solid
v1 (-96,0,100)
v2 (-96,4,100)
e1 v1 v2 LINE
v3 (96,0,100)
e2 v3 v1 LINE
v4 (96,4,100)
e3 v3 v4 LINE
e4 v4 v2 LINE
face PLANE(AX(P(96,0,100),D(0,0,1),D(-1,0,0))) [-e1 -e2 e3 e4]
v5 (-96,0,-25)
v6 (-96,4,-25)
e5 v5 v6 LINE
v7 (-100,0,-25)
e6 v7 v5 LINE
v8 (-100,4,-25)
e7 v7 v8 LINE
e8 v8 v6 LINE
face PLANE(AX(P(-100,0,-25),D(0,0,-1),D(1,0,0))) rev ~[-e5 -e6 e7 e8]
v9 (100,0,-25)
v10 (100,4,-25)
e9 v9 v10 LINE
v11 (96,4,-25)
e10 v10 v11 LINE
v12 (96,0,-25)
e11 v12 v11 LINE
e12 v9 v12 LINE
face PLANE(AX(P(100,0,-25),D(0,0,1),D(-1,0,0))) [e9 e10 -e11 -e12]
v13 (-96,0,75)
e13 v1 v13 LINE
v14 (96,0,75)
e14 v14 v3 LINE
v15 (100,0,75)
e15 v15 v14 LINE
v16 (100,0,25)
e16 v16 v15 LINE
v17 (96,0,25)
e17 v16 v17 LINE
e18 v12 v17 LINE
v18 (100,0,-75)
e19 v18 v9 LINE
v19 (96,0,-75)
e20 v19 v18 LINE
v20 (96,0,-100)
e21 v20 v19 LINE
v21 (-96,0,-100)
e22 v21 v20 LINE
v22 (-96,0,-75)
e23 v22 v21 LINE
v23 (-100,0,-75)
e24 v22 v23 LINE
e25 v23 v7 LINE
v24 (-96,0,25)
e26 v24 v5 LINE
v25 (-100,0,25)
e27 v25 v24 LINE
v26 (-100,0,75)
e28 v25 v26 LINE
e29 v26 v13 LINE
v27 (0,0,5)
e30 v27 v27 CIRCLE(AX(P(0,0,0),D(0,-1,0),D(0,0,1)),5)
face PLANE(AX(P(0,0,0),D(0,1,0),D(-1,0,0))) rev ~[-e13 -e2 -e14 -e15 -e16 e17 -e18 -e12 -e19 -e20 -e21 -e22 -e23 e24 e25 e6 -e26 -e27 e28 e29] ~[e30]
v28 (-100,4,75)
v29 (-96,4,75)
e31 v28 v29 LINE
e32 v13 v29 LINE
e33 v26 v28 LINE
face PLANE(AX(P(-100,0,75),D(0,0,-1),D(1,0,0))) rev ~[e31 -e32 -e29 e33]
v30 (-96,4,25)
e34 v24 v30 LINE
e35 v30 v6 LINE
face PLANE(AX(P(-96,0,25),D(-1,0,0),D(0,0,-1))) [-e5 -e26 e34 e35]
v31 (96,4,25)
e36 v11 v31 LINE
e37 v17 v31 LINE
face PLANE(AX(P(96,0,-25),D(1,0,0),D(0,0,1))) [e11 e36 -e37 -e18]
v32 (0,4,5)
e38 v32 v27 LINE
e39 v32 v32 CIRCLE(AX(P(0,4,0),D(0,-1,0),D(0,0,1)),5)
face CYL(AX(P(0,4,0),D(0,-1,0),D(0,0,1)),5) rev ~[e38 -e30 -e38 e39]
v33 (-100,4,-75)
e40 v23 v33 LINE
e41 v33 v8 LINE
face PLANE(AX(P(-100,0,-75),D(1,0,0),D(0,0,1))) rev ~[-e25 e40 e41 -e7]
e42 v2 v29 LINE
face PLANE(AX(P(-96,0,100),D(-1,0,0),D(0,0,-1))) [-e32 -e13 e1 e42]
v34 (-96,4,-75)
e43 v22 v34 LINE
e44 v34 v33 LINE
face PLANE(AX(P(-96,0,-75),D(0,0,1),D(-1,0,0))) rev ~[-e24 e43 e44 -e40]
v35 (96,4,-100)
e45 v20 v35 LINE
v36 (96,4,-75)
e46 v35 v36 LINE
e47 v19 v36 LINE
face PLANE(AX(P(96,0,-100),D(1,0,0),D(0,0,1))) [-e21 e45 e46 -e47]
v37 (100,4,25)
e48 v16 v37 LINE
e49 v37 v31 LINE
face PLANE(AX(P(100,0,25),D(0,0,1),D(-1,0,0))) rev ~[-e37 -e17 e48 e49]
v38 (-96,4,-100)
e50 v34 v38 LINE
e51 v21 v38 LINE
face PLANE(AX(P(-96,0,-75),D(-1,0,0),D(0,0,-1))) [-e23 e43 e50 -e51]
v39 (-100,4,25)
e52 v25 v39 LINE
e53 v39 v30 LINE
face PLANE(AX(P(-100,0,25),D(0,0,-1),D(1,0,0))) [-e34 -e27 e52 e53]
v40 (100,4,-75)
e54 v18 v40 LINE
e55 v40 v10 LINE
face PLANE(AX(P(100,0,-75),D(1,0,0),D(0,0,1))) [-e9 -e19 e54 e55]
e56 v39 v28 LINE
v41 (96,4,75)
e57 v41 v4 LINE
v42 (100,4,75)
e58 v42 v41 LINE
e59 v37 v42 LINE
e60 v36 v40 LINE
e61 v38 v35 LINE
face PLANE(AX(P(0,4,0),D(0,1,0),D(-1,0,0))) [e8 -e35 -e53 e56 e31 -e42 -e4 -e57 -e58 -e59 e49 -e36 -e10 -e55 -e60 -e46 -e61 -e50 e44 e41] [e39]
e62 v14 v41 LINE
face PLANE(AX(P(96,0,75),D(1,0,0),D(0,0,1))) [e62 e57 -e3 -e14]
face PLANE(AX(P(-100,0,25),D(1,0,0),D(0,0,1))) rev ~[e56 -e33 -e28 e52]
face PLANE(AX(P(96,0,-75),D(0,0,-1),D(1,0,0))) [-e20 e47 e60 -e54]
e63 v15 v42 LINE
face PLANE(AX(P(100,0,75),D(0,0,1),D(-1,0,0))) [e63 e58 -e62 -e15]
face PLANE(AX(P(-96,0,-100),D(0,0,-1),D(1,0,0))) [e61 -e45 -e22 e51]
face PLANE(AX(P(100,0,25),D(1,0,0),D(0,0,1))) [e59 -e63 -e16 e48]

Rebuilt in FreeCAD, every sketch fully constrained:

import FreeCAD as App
import Part
import Sketcher
Q = App.Units.Quantity


def add_polygon(sketch, points):
    """Adds a closed chain of lines whose ends are joined by coincident constraints."""
    first, n = sketch.GeometryCount, len(points)
    for a, b in zip(points, points[1:] + points[:1]):
        sketch.addGeometry(Part.LineSegment(App.Vector(*a, 0), App.Vector(*b, 0)), False)
    for i in range(n):
        sketch.addConstraint(Sketcher.Constraint("Coincident", first + i, 2, first + (i + 1) % n, 1))

doc = App.newDocument("Part")
body = doc.addObject("PartDesign::Body", "Body")

# Sketch on XZ plane
sketch1 = body.newObject("Sketcher::SketchObject", "Sketch")
sketch1.AttachmentSupport = (doc.getObject("XZ_Plane"), [""])
sketch1.MapMode = "FlatFace"
add_polygon(sketch1, [(96, -100), (-96, -100), (-96, -75), (-100, -75), (-100, -25), (-96, -25), (-96, 25), (-100, 25), (-100, 75), (-96, 75), (-96, 100), (96, 100), (96, 75), (100, 75), (100, 25), (96, 25), (96, -25), (100, -25), (100, -75), (96, -75)])  # lines 0-19
sketch1.addConstraint(Sketcher.Constraint("Horizontal", 0))
sketch1.addConstraint(Sketcher.Constraint("Vertical", 1))
sketch1.addConstraint(Sketcher.Constraint("Horizontal", 2))
sketch1.addConstraint(Sketcher.Constraint("Vertical", 3))
sketch1.addConstraint(Sketcher.Constraint("Horizontal", 4))
sketch1.addConstraint(Sketcher.Constraint("Vertical", 5))
sketch1.addConstraint(Sketcher.Constraint("Horizontal", 6))
sketch1.addConstraint(Sketcher.Constraint("Vertical", 7))
sketch1.addConstraint(Sketcher.Constraint("Horizontal", 8))
sketch1.addConstraint(Sketcher.Constraint("Vertical", 9))
sketch1.addConstraint(Sketcher.Constraint("Horizontal", 10))
sketch1.addConstraint(Sketcher.Constraint("Vertical", 11))
sketch1.addConstraint(Sketcher.Constraint("Horizontal", 12))
sketch1.addConstraint(Sketcher.Constraint("Vertical", 13))
sketch1.addConstraint(Sketcher.Constraint("Horizontal", 14))
sketch1.addConstraint(Sketcher.Constraint("Vertical", 15))
sketch1.addConstraint(Sketcher.Constraint("Horizontal", 16))
sketch1.addConstraint(Sketcher.Constraint("Vertical", 17))
sketch1.addConstraint(Sketcher.Constraint("Horizontal", 18))
sketch1.addConstraint(Sketcher.Constraint("Vertical", 19))
sketch1.addConstraint(Sketcher.Constraint("Symmetric", 0, 2, 10, 2, -1, 1))
sketch1.addConstraint(Sketcher.Constraint("Symmetric", 2, 2, 12, 2, -1, 1))
sketch1.addConstraint(Sketcher.Constraint("Symmetric", 4, 2, 14, 2, -1, 1))
sketch1.addConstraint(Sketcher.Constraint("Symmetric", 6, 2, 16, 2, -1, 1))
sketch1.addConstraint(Sketcher.Constraint("Symmetric", 8, 2, 18, 2, -1, 1))
sketch1.addConstraint(Sketcher.Constraint("Symmetric", 8, 2, 11, 2, -2))
sketch1.addConstraint(Sketcher.Constraint("Symmetric", 6, 2, 13, 2, -2))
sketch1.addConstraint(Sketcher.Constraint("Vertical", 1, 2, 4, 2))
sketch1.addConstraint(Sketcher.Constraint("Equal", 3, 5))
sketch1.addConstraint(Sketcher.Constraint("DistanceX", 0, 2, 0, 1, Q("192 mm")))
sketch1.addConstraint(Sketcher.Constraint("DistanceX", 2, 2, 2, 1, Q("4 mm")))
sketch1.addConstraint(Sketcher.Constraint("DistanceY", 1, 1, 1, 2, Q("25 mm")))
sketch1.addConstraint(Sketcher.Constraint("DistanceY", 3, 1, 3, 2, Q("50 mm")))
pad1 = body.newObject("PartDesign::Pad", "Pad")
pad1.Profile = sketch1
pad1.Length = 4
pad1.Reversed = True

# Sketch on XZ plane
sketch2 = body.newObject("Sketcher::SketchObject", "Sketch001")
sketch2.AttachmentSupport = (doc.getObject("XZ_Plane"), [""])
sketch2.MapMode = "FlatFace"
sketch2.AttachmentOffset = App.Placement(App.Vector(0, 0, -4), App.Rotation())
sketch2.addGeometry(Part.Circle(App.Vector(0, 0, 0), App.Vector(0, 0, 1), 5), False)
sketch2.addConstraint(Sketcher.Constraint("Coincident", 0, 3, -1, 1))
sketch2.addConstraint(Sketcher.Constraint("Diameter", 0, Q("10 mm")))
doc.recompute()
hole = body.newObject("PartDesign::Hole", "Hole")
hole.Profile = sketch2
hole.ThreadType = "None"
hole.Diameter = 10
hole.DepthType = "Dimension"
hole.Depth = 4
hole.DrillPoint = "Angled"
hole.DrillPointAngle = 118
hole.Reversed = True

doc.recompute()
